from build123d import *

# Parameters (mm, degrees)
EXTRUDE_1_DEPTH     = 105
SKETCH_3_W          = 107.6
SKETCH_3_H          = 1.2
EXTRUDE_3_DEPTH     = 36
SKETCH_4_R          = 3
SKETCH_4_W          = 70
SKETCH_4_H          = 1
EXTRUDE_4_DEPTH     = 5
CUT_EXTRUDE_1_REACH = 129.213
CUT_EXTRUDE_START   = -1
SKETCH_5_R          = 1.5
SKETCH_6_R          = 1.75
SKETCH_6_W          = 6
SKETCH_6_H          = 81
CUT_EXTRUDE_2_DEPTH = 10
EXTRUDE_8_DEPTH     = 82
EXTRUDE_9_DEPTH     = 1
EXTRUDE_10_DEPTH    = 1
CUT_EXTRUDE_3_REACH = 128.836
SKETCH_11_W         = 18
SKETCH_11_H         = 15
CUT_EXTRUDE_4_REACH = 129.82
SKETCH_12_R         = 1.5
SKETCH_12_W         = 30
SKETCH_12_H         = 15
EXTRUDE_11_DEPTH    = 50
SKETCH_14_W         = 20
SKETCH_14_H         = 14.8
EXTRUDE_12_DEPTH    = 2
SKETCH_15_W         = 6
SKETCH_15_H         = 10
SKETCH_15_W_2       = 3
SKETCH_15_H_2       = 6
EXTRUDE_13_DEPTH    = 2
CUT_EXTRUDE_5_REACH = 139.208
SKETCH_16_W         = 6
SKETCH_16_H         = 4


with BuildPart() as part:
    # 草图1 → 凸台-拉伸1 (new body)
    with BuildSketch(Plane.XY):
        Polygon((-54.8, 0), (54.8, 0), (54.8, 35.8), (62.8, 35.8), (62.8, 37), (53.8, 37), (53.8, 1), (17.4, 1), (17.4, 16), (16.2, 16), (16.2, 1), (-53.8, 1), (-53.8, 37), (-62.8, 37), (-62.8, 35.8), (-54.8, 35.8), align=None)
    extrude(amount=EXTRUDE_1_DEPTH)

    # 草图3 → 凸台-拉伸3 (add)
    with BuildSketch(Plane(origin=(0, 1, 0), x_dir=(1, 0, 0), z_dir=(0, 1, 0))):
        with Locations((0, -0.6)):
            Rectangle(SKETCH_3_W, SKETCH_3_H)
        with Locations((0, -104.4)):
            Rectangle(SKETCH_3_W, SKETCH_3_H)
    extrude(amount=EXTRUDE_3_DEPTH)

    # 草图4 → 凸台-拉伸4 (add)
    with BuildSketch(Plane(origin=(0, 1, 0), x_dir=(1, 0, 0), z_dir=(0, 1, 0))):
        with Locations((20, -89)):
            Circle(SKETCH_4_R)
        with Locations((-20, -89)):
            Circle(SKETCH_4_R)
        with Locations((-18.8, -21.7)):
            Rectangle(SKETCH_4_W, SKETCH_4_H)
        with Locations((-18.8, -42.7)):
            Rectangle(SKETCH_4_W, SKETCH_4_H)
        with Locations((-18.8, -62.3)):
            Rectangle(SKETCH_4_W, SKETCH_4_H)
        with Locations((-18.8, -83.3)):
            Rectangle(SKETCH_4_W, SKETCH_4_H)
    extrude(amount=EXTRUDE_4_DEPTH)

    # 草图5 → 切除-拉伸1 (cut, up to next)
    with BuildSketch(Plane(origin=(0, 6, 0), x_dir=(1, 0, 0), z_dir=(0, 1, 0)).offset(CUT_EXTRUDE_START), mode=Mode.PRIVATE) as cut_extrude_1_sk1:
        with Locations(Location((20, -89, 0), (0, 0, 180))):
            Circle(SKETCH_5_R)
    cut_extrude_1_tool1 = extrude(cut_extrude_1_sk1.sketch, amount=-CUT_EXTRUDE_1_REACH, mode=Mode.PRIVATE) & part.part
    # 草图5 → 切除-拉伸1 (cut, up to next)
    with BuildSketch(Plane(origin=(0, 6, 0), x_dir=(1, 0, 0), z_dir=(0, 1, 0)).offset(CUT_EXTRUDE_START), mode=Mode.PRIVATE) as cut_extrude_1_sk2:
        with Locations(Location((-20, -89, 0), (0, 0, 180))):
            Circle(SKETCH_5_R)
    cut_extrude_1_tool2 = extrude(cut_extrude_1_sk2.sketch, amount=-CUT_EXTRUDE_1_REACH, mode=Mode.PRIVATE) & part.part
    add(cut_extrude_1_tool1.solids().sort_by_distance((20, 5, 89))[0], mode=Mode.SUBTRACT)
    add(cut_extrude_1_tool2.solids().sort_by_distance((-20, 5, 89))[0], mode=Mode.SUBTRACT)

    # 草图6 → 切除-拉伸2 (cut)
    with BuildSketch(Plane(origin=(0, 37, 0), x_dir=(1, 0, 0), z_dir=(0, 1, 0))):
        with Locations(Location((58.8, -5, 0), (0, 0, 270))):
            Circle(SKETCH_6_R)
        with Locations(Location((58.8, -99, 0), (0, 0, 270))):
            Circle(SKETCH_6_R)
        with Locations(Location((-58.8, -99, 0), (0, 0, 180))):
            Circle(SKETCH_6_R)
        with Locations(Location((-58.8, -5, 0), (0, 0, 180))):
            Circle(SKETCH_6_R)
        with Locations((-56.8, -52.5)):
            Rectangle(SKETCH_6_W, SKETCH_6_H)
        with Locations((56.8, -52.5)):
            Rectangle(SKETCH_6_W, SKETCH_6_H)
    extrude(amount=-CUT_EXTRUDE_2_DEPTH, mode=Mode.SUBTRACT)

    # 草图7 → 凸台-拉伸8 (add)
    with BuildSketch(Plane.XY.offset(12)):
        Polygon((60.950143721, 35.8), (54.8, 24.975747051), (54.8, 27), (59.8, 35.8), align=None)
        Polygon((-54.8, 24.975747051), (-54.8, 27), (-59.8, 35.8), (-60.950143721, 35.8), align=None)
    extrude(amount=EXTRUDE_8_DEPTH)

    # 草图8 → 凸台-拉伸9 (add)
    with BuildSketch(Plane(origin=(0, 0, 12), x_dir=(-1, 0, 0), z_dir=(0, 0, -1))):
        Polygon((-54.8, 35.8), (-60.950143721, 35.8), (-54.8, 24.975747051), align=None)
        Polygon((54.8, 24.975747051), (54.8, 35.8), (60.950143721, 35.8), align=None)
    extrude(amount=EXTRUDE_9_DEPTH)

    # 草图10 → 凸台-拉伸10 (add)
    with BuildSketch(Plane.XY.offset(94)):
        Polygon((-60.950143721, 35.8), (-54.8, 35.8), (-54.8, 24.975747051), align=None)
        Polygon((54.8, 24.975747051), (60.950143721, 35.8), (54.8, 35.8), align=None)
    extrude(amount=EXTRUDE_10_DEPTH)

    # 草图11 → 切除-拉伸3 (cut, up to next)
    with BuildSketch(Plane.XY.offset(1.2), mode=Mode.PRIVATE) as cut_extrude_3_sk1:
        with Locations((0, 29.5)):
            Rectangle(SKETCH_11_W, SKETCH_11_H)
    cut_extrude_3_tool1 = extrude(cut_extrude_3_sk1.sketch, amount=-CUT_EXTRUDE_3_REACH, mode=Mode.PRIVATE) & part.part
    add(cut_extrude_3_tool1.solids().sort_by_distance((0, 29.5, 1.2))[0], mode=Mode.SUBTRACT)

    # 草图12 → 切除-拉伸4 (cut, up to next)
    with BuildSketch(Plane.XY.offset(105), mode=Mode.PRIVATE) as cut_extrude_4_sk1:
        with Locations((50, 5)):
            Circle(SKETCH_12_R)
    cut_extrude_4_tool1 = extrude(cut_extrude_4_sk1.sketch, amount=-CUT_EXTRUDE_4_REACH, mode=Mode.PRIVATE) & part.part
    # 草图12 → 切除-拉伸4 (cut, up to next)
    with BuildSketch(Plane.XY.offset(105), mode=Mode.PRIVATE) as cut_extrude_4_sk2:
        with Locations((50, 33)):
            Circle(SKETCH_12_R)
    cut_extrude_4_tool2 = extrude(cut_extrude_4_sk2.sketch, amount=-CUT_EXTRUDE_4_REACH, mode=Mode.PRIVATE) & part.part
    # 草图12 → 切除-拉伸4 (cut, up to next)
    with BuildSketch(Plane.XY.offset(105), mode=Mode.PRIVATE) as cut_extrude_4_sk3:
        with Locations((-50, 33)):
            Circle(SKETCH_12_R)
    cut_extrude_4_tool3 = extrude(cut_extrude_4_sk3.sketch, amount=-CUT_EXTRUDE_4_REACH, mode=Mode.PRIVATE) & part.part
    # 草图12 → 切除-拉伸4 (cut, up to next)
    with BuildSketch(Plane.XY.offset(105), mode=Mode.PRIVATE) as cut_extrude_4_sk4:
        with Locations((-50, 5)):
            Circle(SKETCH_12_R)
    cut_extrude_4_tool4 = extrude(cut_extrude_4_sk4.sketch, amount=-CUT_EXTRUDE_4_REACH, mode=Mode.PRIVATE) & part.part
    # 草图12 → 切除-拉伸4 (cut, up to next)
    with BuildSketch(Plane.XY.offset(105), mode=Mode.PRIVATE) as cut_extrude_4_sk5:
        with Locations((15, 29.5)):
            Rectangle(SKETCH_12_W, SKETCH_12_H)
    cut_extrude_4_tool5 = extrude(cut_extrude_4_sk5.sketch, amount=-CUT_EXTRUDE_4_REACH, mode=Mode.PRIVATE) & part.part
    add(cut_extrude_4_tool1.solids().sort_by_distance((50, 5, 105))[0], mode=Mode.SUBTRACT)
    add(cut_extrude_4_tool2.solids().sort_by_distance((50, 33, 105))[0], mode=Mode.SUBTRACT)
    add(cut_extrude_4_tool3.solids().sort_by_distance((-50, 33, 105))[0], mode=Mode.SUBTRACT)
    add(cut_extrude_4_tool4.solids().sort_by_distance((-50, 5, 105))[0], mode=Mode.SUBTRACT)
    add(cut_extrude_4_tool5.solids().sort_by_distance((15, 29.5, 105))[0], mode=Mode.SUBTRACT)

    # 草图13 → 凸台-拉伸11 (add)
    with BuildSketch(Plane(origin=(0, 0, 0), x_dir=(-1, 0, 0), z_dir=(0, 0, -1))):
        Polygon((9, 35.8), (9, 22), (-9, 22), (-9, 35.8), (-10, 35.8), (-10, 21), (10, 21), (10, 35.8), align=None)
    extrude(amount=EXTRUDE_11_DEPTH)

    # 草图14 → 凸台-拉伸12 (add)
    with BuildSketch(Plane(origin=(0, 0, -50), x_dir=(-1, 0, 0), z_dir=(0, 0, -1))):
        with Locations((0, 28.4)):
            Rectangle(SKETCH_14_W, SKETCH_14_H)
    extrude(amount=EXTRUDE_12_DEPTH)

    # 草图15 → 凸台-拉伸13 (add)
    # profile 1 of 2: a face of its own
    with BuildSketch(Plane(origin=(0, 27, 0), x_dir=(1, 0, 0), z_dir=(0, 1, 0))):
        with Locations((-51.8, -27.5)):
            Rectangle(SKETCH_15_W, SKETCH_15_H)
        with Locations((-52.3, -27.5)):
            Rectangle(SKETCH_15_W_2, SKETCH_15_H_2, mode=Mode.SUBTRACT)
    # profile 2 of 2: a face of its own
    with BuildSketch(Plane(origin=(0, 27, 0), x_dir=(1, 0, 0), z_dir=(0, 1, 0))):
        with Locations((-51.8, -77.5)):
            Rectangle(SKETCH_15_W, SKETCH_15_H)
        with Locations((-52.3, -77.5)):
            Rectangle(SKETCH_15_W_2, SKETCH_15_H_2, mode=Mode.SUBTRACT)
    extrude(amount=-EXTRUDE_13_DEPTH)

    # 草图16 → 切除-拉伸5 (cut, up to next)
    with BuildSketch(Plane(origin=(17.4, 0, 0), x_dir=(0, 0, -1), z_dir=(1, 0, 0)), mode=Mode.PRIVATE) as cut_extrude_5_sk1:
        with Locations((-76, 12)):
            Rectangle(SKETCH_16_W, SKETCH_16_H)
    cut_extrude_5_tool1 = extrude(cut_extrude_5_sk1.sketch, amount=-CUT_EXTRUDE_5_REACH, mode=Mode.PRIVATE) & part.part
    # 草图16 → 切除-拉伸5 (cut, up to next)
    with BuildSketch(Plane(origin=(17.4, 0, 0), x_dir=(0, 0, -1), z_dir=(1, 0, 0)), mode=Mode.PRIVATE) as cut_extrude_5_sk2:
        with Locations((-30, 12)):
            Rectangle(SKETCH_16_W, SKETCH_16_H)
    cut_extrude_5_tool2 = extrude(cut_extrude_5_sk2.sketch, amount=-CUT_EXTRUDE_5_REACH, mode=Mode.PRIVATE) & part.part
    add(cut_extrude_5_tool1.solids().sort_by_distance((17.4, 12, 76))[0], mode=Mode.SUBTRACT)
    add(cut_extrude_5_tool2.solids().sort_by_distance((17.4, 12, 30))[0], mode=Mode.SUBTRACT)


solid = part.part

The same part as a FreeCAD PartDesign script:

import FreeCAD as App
import Part
import Sketcher

V = App.Vector

doc = App.newDocument("Part")
body = doc.addObject("PartDesign::Body", "Body")

# Sketch on XY plane
sketch1 = body.newObject("Sketcher::SketchObject", "Sketch")
sketch1.AttachmentSupport = (doc.getObject("XY_Plane"), [""])
sketch1.MapMode = "FlatFace"
sketch1.addGeometry([
    Part.LineSegment(V(-54.8, 0, 0), V(54.8, 0, 0)),  # 0
    Part.LineSegment(V(54.8, 0, 0), V(54.8, 35.8, 0)),  # 1
    Part.LineSegment(V(54.8, 35.8, 0), V(62.8, 35.8, 0)),  # 2
    Part.LineSegment(V(62.8, 35.8, 0), V(62.8, 37, 0)),  # 3
    Part.LineSegment(V(62.8, 37, 0), V(53.8, 37, 0)),  # 4
    Part.LineSegment(V(53.8, 37, 0), V(53.8, 1, 0)),  # 5
    Part.LineSegment(V(53.8, 1, 0), V(17.4, 1, 0)),  # 6
    Part.LineSegment(V(17.4, 1, 0), V(17.4, 16, 0)),  # 7
    Part.LineSegment(V(17.4, 16, 0), V(16.2, 16, 0)),  # 8
    Part.LineSegment(V(16.2, 16, 0), V(16.2, 1, 0)),  # 9
    Part.LineSegment(V(16.2, 1, 0), V(-53.8, 1, 0)),  # 10
    Part.LineSegment(V(-53.8, 1, 0), V(-53.8, 37, 0)),  # 11
    Part.LineSegment(V(-53.8, 37, 0), V(-62.8, 37, 0)),  # 12
    Part.LineSegment(V(-62.8, 37, 0), V(-62.8, 35.8, 0)),  # 13
    Part.LineSegment(V(-62.8, 35.8, 0), V(-54.8, 35.8, 0)),  # 14
    Part.LineSegment(V(-54.8, 35.8, 0), V(-54.8, 0, 0)),  # 15
], False)
sketch1.addConstraint([
    Sketcher.Constraint("Coincident", 0, 2, 1, 1),
    Sketcher.Constraint("Coincident", 1, 2, 2, 1),
    Sketcher.Constraint("Coincident", 2, 2, 3, 1),
    Sketcher.Constraint("Coincident", 3, 2, 4, 1),
    Sketcher.Constraint("Coincident", 4, 2, 5, 1),
    Sketcher.Constraint("Coincident", 5, 2, 6, 1),
    Sketcher.Constraint("Coincident", 6, 2, 7, 1),
    Sketcher.Constraint("Coincident", 7, 2, 8, 1),
    Sketcher.Constraint("Coincident", 8, 2, 9, 1),
    Sketcher.Constraint("Coincident", 9, 2, 10, 1),
    Sketcher.Constraint("Coincident", 10, 2, 11, 1),
    Sketcher.Constraint("Coincident", 11, 2, 12, 1),
    Sketcher.Constraint("Coincident", 12, 2, 13, 1),
    Sketcher.Constraint("Coincident", 13, 2, 14, 1),
    Sketcher.Constraint("Coincident", 14, 2, 15, 1),
    Sketcher.Constraint("Coincident", 15, 2, 0, 1),
    Sketcher.Constraint("Horizontal", 0),
    Sketcher.Constraint("Vertical", 1),
    Sketcher.Constraint("Horizontal", 2),
    Sketcher.Constraint("Vertical", 3),
    Sketcher.Constraint("Horizontal", 4),
    Sketcher.Constraint("Vertical", 5),
    Sketcher.Constraint("Horizontal", 6),
    Sketcher.Constraint("Vertical", 7),
    Sketcher.Constraint("Horizontal", 8),
    Sketcher.Constraint("Vertical", 9),
    Sketcher.Constraint("Horizontal", 10),
    Sketcher.Constraint("Vertical", 11),
    Sketcher.Constraint("Horizontal", 12),
    Sketcher.Constraint("Vertical", 13),
    Sketcher.Constraint("Horizontal", 14),
    Sketcher.Constraint("Vertical", 15),
    Sketcher.Constraint("Symmetric", 0, 2, 15, 2, -1, 1),
    Sketcher.Constraint("Symmetric", 5, 2, 10, 2, -2),
    Sketcher.Constraint("Symmetric", 3, 2, 12, 2, -2),
    Sketcher.Constraint("Horizontal", 2, 2, 13, 2),
    Sketcher.Constraint("Equal", 8, 3),
    Sketcher.Constraint("DistanceX", 2, 1, 2, 2, 8.0),
    Sketcher.Constraint("DistanceX", 4, 2, 4, 1, 9.0),
    Sketcher.Constraint("DistanceX", 10, 2, 10, 1, 70.0),
    Sketcher.Constraint("DistanceY", 5, 2, 5, 1, 36.0),
    Sketcher.Constraint("DistanceY", 7, 1, 7, 2, 15.0),
    Sketcher.Constraint("DistanceX", 0, 1, 0, 2, 109.6),
    Sketcher.Constraint("DistanceX", 6, 2, 6, 1, 36.4),
    Sketcher.Constraint("DistanceY", 1, 1, 1, 2, 35.8),
])
pad1 = body.newObject("PartDesign::Pad", "Pad")
pad1.Profile = sketch1
pad1.Length = 105

# Sketch on XZ plane
sketch2 = body.newObject("Sketcher::SketchObject", "Sketch001")
sketch2.AttachmentSupport = (doc.getObject("XZ_Plane"), [""])
sketch2.MapMode = "FlatFace"
sketch2.AttachmentOffset = App.Placement(V(0, 0, -1), App.Rotation())
sketch2.addGeometry([
    Part.LineSegment(V(-53.8, 0, 0), V(-53.8, 1.2, 0)),  # 0
    Part.LineSegment(V(-53.8, 1.2, 0), V(53.8, 1.2, 0)),  # 1
    Part.LineSegment(V(53.8, 1.2, 0), V(53.8, 0, 0)),  # 2
    Part.LineSegment(V(53.8, 0, 0), V(-53.8, 0, 0)),  # 3
    Part.LineSegment(V(-53.8, 103.8, 0), V(-53.8, 105, 0)),  # 4
    Part.LineSegment(V(-53.8, 105, 0), V(53.8, 105, 0)),  # 5
    Part.LineSegment(V(53.8, 105, 0), V(53.8, 103.8, 0)),  # 6
    Part.LineSegment(V(53.8, 103.8, 0), V(-53.8, 103.8, 0)),  # 7
], False)
sketch2.addConstraint([
    Sketcher.Constraint("Coincident", 0, 2, 1, 1),
    Sketcher.Constraint("Coincident", 1, 2, 2, 1),
    Sketcher.Constraint("Coincident", 2, 2, 3, 1),
    Sketcher.Constraint("Coincident", 3, 2, 0, 1),
    Sketcher.Constraint("Coincident", 4, 2, 5, 1),
    Sketcher.Constraint("Coincident", 5, 2, 6, 1),
    Sketcher.Constraint("Coincident", 6, 2, 7, 1),
    Sketcher.Constraint("Coincident", 7, 2, 4, 1),
    Sketcher.Constraint("Vertical", 0),
    Sketcher.Constraint("Horizontal", 1),
    Sketcher.Constraint("Vertical", 2),
    Sketcher.Constraint("Horizontal", 3),
    Sketcher.Constraint("Vertical", 4),
    Sketcher.Constraint("Horizontal", 5),
    Sketcher.Constraint("Vertical", 6),
    Sketcher.Constraint("Horizontal", 7),
    Sketcher.Constraint("Symmetric", 2, 2, 3, 2, -1, 1),
    Sketcher.Constraint("Vertical", 3, 2, 4, 2),
    Sketcher.Constraint("Vertical", 2, 2, 5, 2),
    Sketcher.Constraint("Equal", 2, 4),
    Sketcher.Constraint("DistanceX", 1, 1, 1, 2, 107.6),
    Sketcher.Constraint("DistanceY", 0, 1, 0, 2, 1.2),
    Sketcher.Constraint("DistanceY", -1, 1, 4, 2, 105.0),
])
pad2 = body.newObject("PartDesign::Pad", "Pad001")
pad2.Profile = sketch2
pad2.Length = 36
pad2.Reversed = True

# Sketch on XZ plane
sketch3 = body.newObject("Sketcher::SketchObject", "Sketch002")
sketch3.AttachmentSupport = (doc.getObject("XZ_Plane"), [""])
sketch3.MapMode = "FlatFace"
sketch3.AttachmentOffset = App.Placement(V(0, 0, -1), App.Rotation())
sketch3.addGeometry([
    Part.Circle(V(20, 89, 0), V(0, 0, 1), 3),  # 0
    Part.Circle(V(-20, 89, 0), V(0, 0, 1), 3),  # 1
    Part.LineSegment(V(-53.8, 21.2, 0), V(-53.8, 22.2, 0)),  # 2
    Part.LineSegment(V(-53.8, 22.2, 0), V(16.2, 22.2, 0)),  # 3
    Part.LineSegment(V(16.2, 22.2, 0), V(16.2, 21.2, 0)),  # 4
    Part.LineSegment(V(16.2, 21.2, 0), V(-53.8, 21.2, 0)),  # 5
    Part.LineSegment(V(-53.8, 42.2, 0), V(-53.8, 43.2, 0)),  # 6
    Part.LineSegment(V(-53.8, 43.2, 0), V(16.2, 43.2, 0)),  # 7
    Part.LineSegment(V(16.2, 43.2, 0), V(16.2, 42.2, 0)),  # 8
    Part.LineSegment(V(16.2, 42.2, 0), V(-53.8, 42.2, 0)),  # 9
    Part.LineSegment(V(-53.8, 61.8, 0), V(-53.8, 62.8, 0)),  # 10
    Part.LineSegment(V(-53.8, 62.8, 0), V(16.2, 62.8, 0)),  # 11
    Part.LineSegment(V(16.2, 62.8, 0), V(16.2, 61.8, 0)),  # 12
    Part.LineSegment(V(16.2, 61.8, 0), V(-53.8, 61.8, 0)),  # 13
    Part.LineSegment(V(-53.8, 82.8, 0), V(-53.8, 83.8, 0)),  # 14
    Part.LineSegment(V(-53.8, 83.8, 0), V(16.2, 83.8, 0)),  # 15
    Part.LineSegment(V(16.2, 83.8, 0), V(16.2, 82.8, 0)),  # 16
    Part.LineSegment(V(16.2, 82.8, 0), V(-53.8, 82.8, 0)),  # 17
], False)
sketch3.addConstraint([
    Sketcher.Constraint("Coincident", 2, 2, 3, 1),
    Sketcher.Constraint("Coincident", 3, 2, 4, 1),
    Sketcher.Constraint("Coincident", 4, 2, 5, 1),
    Sketcher.Constraint("Coincident", 5, 2, 2, 1),
    Sketcher.Constraint("Coincident", 6, 2, 7, 1),
    Sketcher.Constraint("Coincident", 7, 2, 8, 1),
    Sketcher.Constraint("Coincident", 8, 2, 9, 1),
    Sketcher.Constraint("Coincident", 9, 2, 6, 1),
    Sketcher.Constraint("Coincident", 10, 2, 11, 1),
    Sketcher.Constraint("Coincident", 11, 2, 12, 1),
    Sketcher.Constraint("Coincident", 12, 2, 13, 1),
    Sketcher.Constraint("Coincident", 13, 2, 10, 1),
    Sketcher.Constraint("Coincident", 14, 2, 15, 1),
    Sketcher.Constraint("Coincident", 15, 2, 16, 1),
    Sketcher.Constraint("Coincident", 16, 2, 17, 1),
    Sketcher.Constraint("Coincident", 17, 2, 14, 1),
    Sketcher.Constraint("Vertical", 2),
    Sketcher.Constraint("Horizontal", 3),
    Sketcher.Constraint("Vertical", 4),
    Sketcher.Constraint("Horizontal", 5),
    Sketcher.Constraint("Vertical", 6),
    Sketcher.Constraint("Horizontal", 7),
    Sketcher.Constraint("Vertical", 8),
    Sketcher.Constraint("Horizontal", 9),
    Sketcher.Constraint("Vertical", 10),
    Sketcher.Constraint("Horizontal", 11),
    Sketcher.Constraint("Vertical", 12),
    Sketcher.Constraint("Horizontal", 13),
    Sketcher.Constraint("Vertical", 14),
    Sketcher.Constraint("Horizontal", 15),
    Sketcher.Constraint("Vertical", 16),
    Sketcher.Constraint("Horizontal", 17),
    Sketcher.Constraint("Equal", 0, 1),
    Sketcher.Constraint("Symmetric", 0, 3, 1, 3, -2),
    Sketcher.Constraint("Vertical", 5, 2, 6, 2),
    Sketcher.Constraint("Vertical", 4, 2, 7, 2),
    Sketcher.Constraint("Vertical", 9, 2, 10, 2),
    Sketcher.Constraint("Vertical", 8, 2, 11, 2),
    Sketcher.Constraint("Vertical", 13, 2, 14, 2),
    Sketcher.Constraint("Vertical", 12, 2, 15, 2),
    Sketcher.Constraint("Equal", 4, 6),
    Sketcher.Constraint("Equal", 8, 10),
    Sketcher.Constraint("Equal", 12, 14),
    Sketcher.Constraint("Diameter", 0, 6.0),
    Sketcher.Constraint("DistanceX", 3, 1, 3, 2, 70.0),
    Sketcher.Constraint("DistanceY", 2, 1, 2, 2, 1.0),
    Sketcher.Constraint("DistanceX", -1, 1, 0, 3, 20.0),
    Sketcher.Constraint("DistanceY", -1, 1, 0, 3, 89.0),
    Sketcher.Constraint("DistanceY", 2, 2, 6, 2, 21.0),
    Sketcher.Constraint("DistanceY", 10, 2, 14, 2, 21.0),
    Sketcher.Constraint("DistanceX", 2, 2, -1, 1, 53.8),
    Sketcher.Constraint("DistanceY", -1, 1, 2, 2, 22.2),
    Sketcher.Constraint("DistanceY", -1, 1, 10, 2, 62.8),
])
pad3 = body.newObject("PartDesign::Pad", "Pad002")
pad3.Profile = sketch3
pad3.Length = 5
pad3.Reversed = True

# Sketch on XZ plane
sketch4 = body.newObject("Sketcher::SketchObject", "Sketch003")
sketch4.AttachmentSupport = (doc.getObject("XZ_Plane"), [""])
sketch4.MapMode = "FlatFace"
sketch4.AttachmentOffset = App.Placement(V(0, 0, -5), App.Rotation())
sketch4.addGeometry(Part.Circle(V(20, 89, 0), V(0, 0, 1), 1.5), False)
sketch4.addConstraint([
    Sketcher.Constraint("Diameter", 0, 3.0),
    Sketcher.Constraint("DistanceX", -1, 1, 0, 3, 20.0),
    Sketcher.Constraint("DistanceY", -1, 1, 0, 3, 89.0),
])
pocket1 = body.newObject("PartDesign::Pocket", "Pocket")
pocket1.Profile = sketch4
pocket1.Type = "UpToFirst"
pocket1.Reversed = True

# Sketch on XZ plane
sketch5 = body.newObject("Sketcher::SketchObject", "Sketch004")
sketch5.AttachmentSupport = (doc.getObject("XZ_Plane"), [""])
sketch5.MapMode = "FlatFace"
sketch5.AttachmentOffset = App.Placement(V(0, 0, -5), App.Rotation())
sketch5.addGeometry(Part.Circle(V(-20, 89, 0), V(0, 0, 1), 1.5), False)
sketch5.addConstraint([
    Sketcher.Constraint("Diameter", 0, 3.0),
    Sketcher.Constraint("DistanceX", 0, 3, -1, 1, 20.0),
    Sketcher.Constraint("DistanceY", -1, 1, 0, 3, 89.0),
])
pocket2 = body.newObject("PartDesign::Pocket", "Pocket001")
pocket2.Profile = sketch5
pocket2.Type = "UpToFirst"
pocket2.Reversed = True

# Sketch on XZ plane
sketch6 = body.newObject("Sketcher::SketchObject", "Sketch005")
sketch6.AttachmentSupport = (doc.getObject("XZ_Plane"), [""])
sketch6.MapMode = "FlatFace"
sketch6.AttachmentOffset = App.Placement(V(0, 0, -37), App.Rotation())
sketch6.addGeometry([
    Part.Circle(V(58.8, 5, 0), V(0, 0, 1), 1.8),  # 0
    Part.Circle(V(58.8, 99, 0), V(0, 0, 1), 1.8),  # 1
    Part.Circle(V(-58.8, 99, 0), V(0, 0, 1), 1.8),  # 2
    Part.Circle(V(-58.8, 5, 0), V(0, 0, 1), 1.8),  # 3
    Part.LineSegment(V(-59.8, 12, 0), V(-59.8, 93, 0)),  # 4
    Part.LineSegment(V(-59.8, 93, 0), V(-53.8, 93, 0)),  # 5
    Part.LineSegment(V(-53.8, 93, 0), V(-53.8, 12, 0)),  # 6
    Part.LineSegment(V(-53.8, 12, 0), V(-59.8, 12, 0)),  # 7
    Part.LineSegment(V(53.8, 12, 0), V(53.8, 93, 0)),  # 8
    Part.LineSegment(V(53.8, 93, 0), V(59.8, 93, 0)),  # 9
    Part.LineSegment(V(59.8, 93, 0), V(59.8, 12, 0)),  # 10
    Part.LineSegment(V(59.8, 12, 0), V(53.8, 12, 0)),  # 11
], False)
sketch6.addConstraint([
    Sketcher.Constraint("Coincident", 4, 2, 5, 1),
    Sketcher.Constraint("Coincident", 5, 2, 6, 1),
    Sketcher.Constraint("Coincident", 6, 2, 7, 1),
    Sketcher.Constraint("Coincident", 7, 2, 4, 1),
    Sketcher.Constraint("Coincident", 8, 2, 9, 1),
    Sketcher.Constraint("Coincident", 9, 2, 10, 1),
    Sketcher.Constraint("Coincident", 10, 2, 11, 1),
    Sketcher.Constraint("Coincident", 11, 2, 8, 1),
    Sketcher.Constraint("Vertical", 4),
    Sketcher.Constraint("Horizontal", 5),
    Sketcher.Constraint("Vertical", 6),
    Sketcher.Constraint("Horizontal", 7),
    Sketcher.Constraint("Vertical", 8),
    Sketcher.Constraint("Horizontal", 9),
    Sketcher.Constraint("Vertical", 10),
    Sketcher.Constraint("Horizontal", 11),
    Sketcher.Constraint("Equal", 0, 1),
    Sketcher.Constraint("Equal", 1, 2),
    Sketcher.Constraint("Equal", 2, 3),
    Sketcher.Constraint("Symmetric", 1, 3, 2, 3, -2),
    Sketcher.Constraint("Symmetric", 0, 3, 3, 3, -2),
    Sketcher.Constraint("Symmetric", 5, 2, 8, 2, -2),
    Sketcher.Constraint("Symmetric", 7, 2, 10, 2, -2),
    Sketcher.Constraint("Vertical", 0, 3, 1, 3),
    Sketcher.Constraint("Diameter", 0, 3.5),
    Sketcher.Constraint("DistanceX", 5, 1, 5, 2, 6.0),
    Sketcher.Constraint("DistanceY", 4, 1, 4, 2, 81.0),
    Sketcher.Constraint("DistanceY", -1, 1, 0, 3, 5.0),
    Sketcher.Constraint("DistanceY", -1, 1, 1, 3, 99.0),
    Sketcher.Constraint("DistanceY", -1, 1, 4, 2, 93.0),
    Sketcher.Constraint("DistanceX", 4, 2, 2, 3, 1.0),
    Sketcher.Constraint("DistanceX", -1, 1, 0, 3, 58.8),
])
pocket3 = body.newObject("PartDesign::Pocket", "Pocket002")
pocket3.Profile = sketch6
pocket3.Length = 10
pocket3.Reversed = True

# Sketch on XY plane
sketch7 = body.newObject("Sketcher::SketchObject", "Sketch006")
sketch7.AttachmentSupport = (doc.getObject("XY_Plane"), [""])
sketch7.MapMode = "FlatFace"
sketch7.AttachmentOffset = App.Placement(V(0, 0, 12), App.Rotation())
sketch7.addGeometry([
    Part.LineSegment(V(54.8, 25, 0), V(61, 35.8, 0)),  # 0
    Part.LineSegment(V(61, 35.8, 0), V(59.8, 35.8, 0)),  # 1
    Part.LineSegment(V(59.8, 35.8, 0), V(54.8, 27, 0)),  # 2
    Part.LineSegment(V(54.8, 27, 0), V(54.8, 25, 0)),  # 3
    Part.LineSegment(V(-54.8, 25, 0), V(-54.8, 27, 0)),  # 4
    Part.LineSegment(V(-54.8, 27, 0), V(-59.8, 35.8, 0)),  # 5
    Part.LineSegment(V(-59.8, 35.8, 0), V(-61, 35.8, 0)),  # 6
    Part.LineSegment(V(-61, 35.8, 0), V(-54.8, 25, 0)),  # 7
], False)
sketch7.addConstraint([
    Sketcher.Constraint("Coincident", 0, 2, 1, 1),
    Sketcher.Constraint("Coincident", 1, 2, 2, 1),
    Sketcher.Constraint("Coincident", 2, 2, 3, 1),
    Sketcher.Constraint("Coincident", 3, 2, 0, 1),
    Sketcher.Constraint("Coincident", 4, 2, 5, 1),
    Sketcher.Constraint("Coincident", 5, 2, 6, 1),
    Sketcher.Constraint("Coincident", 6, 2, 7, 1),
    Sketcher.Constraint("Coincident", 7, 2, 4, 1),
    Sketcher.Constraint("Horizontal", 1),
    Sketcher.Constraint("Vertical", 3),
    Sketcher.Constraint("Vertical", 4),
    Sketcher.Constraint("Horizontal", 6),
    Sketcher.Constraint("Symmetric", 2, 2, 4, 2, -2),
    Sketcher.Constraint("Symmetric", 1, 2, 5, 2, -2),
    Sketcher.Constraint("Parallel", 0, 2),
    Sketcher.Constraint("Parallel", 5, 7),
    Sketcher.Constraint("Horizontal", 3, 2, 7, 2),
    Sketcher.Constraint("DistanceY", -1, 1, 2, 2, 27.0),
    Sketcher.Constraint("DistanceX", 2, 2, 1, 2, 5.0),
    Sketcher.Constraint("DistanceY", -1, 1, 0, 2, 35.8),
    Sketcher.Constraint("DistanceX", -1, 1, 1, 2, 59.8),
    Sketcher.Constraint("DistanceX", 1, 2, 1, 1, 1.150144),
])
pad4 = body.newObject("PartDesign::Pad", "Pad003")
pad4.Profile = sketch7
pad4.Length = 82

# Sketch on XY plane
sketch8 = body.newObject("Sketcher::SketchObject", "Sketch007")
sketch8.AttachmentSupport = (doc.getObject("XY_Plane"), [""])
sketch8.MapMode = "FlatFace"
sketch8.AttachmentOffset = App.Placement(V(0, 0, 12), App.Rotation())
sketch8.addGeometry([
    Part.LineSegment(V(55, 36, 0), V(61, 36, 0)),  # 0
    Part.LineSegment(V(61, 36, 0), V(55, 25, 0)),  # 1
    Part.LineSegment(V(55, 25, 0), V(55, 36, 0)),  # 2
    Part.LineSegment(V(-55, 36, 0), V(-55, 25, 0)),  # 3
    Part.LineSegment(V(-55, 25, 0), V(-61, 36, 0)),  # 4
    Part.LineSegment(V(-61, 36, 0), V(-55, 36, 0)),  # 5
], False)
sketch8.addConstraint([
    Sketcher.Constraint("Coincident", 0, 2, 1, 1),
    Sketcher.Constraint("Coincident", 1, 2, 2, 1),
    Sketcher.Constraint("Coincident", 2, 2, 0, 1),
    Sketcher.Constraint("Coincident", 3, 2, 4, 1),
    Sketcher.Constraint("Coincident", 4, 2, 5, 1),
    Sketcher.Constraint("Coincident", 5, 2, 3, 1),
    Sketcher.Constraint("Horizontal", 0),
    Sketcher.Constraint("Vertical", 2),
    Sketcher.Constraint("Vertical", 3),
    Sketcher.Constraint("Horizontal", 5),
    Sketcher.Constraint("Symmetric", 1, 2, 3, 2, -2),
    Sketcher.Constraint("Symmetric", 0, 2, 4, 2, -2),
    Sketcher.Constraint("DistanceY", -1, 1, 0, 2, 35.8),
    Sketcher.Constraint("DistanceX", -1, 1, 1, 2, 54.8),
    Sketcher.Constraint("DistanceX", 0, 1, 0, 2, 6.150144),
    Sketcher.Constraint("DistanceY", 2, 1, 2, 2, 10.824253),
])
pad5 = body.newObject("PartDesign::Pad", "Pad004")
pad5.Profile = sketch8
pad5.Length = 1
pad5.Reversed = True

# Sketch on XY plane
sketch9 = body.newObject("Sketcher::SketchObject", "Sketch008")
sketch9.AttachmentSupport = (doc.getObject("XY_Plane"), [""])
sketch9.MapMode = "FlatFace"
sketch9.AttachmentOffset = App.Placement(V(0, 0, 94), App.Rotation())
sketch9.addGeometry([
    Part.LineSegment(V(-55, 36, 0), V(-61, 36, 0)),  # 0
    Part.LineSegment(V(-61, 36, 0), V(-55, 25, 0)),  # 1
    Part.LineSegment(V(-55, 25, 0), V(-55, 36, 0)),  # 2
    Part.LineSegment(V(55, 25, 0), V(61, 36, 0)),  # 3
    Part.LineSegment(V(61, 36, 0), V(55, 36, 0)),  # 4
    Part.LineSegment(V(55, 36, 0), V(55, 25, 0)),  # 5
], False)
sketch9.addConstraint([
    Sketcher.Constraint("Coincident", 0, 2, 1, 1),
    Sketcher.Constraint("Coincident", 1, 2, 2, 1),
    Sketcher.Constraint("Coincident", 2, 2, 0, 1),
    Sketcher.Constraint("Coincident", 3, 2, 4, 1),
    Sketcher.Constraint("Coincident", 4, 2, 5, 1),
    Sketcher.Constraint("Coincident", 5, 2, 3, 1),
    Sketcher.Constraint("Horizontal", 0),
    Sketcher.Constraint("Vertical", 2),
    Sketcher.Constraint("Horizontal", 4),
    Sketcher.Constraint("Vertical", 5),
    Sketcher.Constraint("Symmetric", 0, 2, 3, 2, -2),
    Sketcher.Constraint("Symmetric", 1, 2, 5, 2, -2),
    Sketcher.Constraint("DistanceY", -1, 1, 0, 2, 35.8),
    Sketcher.Constraint("DistanceX", 1, 2, -1, 1, 54.8),
    Sketcher.Constraint("DistanceX", 0, 2, 0, 1, 6.150144),
    Sketcher.Constraint("DistanceY", 2, 1, 2, 2, 10.824253),
])
pad6 = body.newObject("PartDesign::Pad", "Pad005")
pad6.Profile = sketch9
pad6.Length = 1

# Sketch on XY plane
sketch10 = body.newObject("Sketcher::SketchObject", "Sketch009")
sketch10.AttachmentSupport = (doc.getObject("XY_Plane"), [""])
sketch10.MapMode = "FlatFace"
sketch10.AttachmentOffset = App.Placement(V(0, 0, 1.2), App.Rotation())
sketch10.addGeometry([
    Part.LineSegment(V(-9, 37, 0), V(-9, 22, 0)),
    Part.LineSegment(V(-9, 22, 0), V(9, 22, 0)),
    Part.LineSegment(V(9, 22, 0), V(9, 37, 0)),
    Part.LineSegment(V(9, 37, 0), V(-9, 37, 0)),
], False)
sketch10.addConstraint([
    Sketcher.Constraint("Coincident", 0, 2, 1, 1),
    Sketcher.Constraint("Coincident", 1, 2, 2, 1),
    Sketcher.Constraint("Coincident", 2, 2, 3, 1),
    Sketcher.Constraint("Coincident", 3, 2, 0, 1),
    Sketcher.Constraint("Vertical", 0),
    Sketcher.Constraint("Horizontal", 1),
    Sketcher.Constraint("Vertical", 2),
    Sketcher.Constraint("Horizontal", 3),
    Sketcher.Constraint("DistanceX", 1, 1, 1, 2, 18.0),
    Sketcher.Constraint("DistanceY", 0, 2, 0, 1, 15.0),
    Sketcher.Constraint("DistanceX", 0, 2, -1, 1, 9.0),
    Sketcher.Constraint("DistanceY", -1, 1, 0, 2, 22.0),
])
pocket4 = body.newObject("PartDesign::Pocket", "Pocket003")
pocket4.Profile = sketch10
pocket4.Type = "UpToFirst"

# Sketch on XY plane
sketch11 = body.newObject("Sketcher::SketchObject", "Sketch010")
sketch11.AttachmentSupport = (doc.getObject("XY_Plane"), [""])
sketch11.MapMode = "FlatFace"
sketch11.AttachmentOffset = App.Placement(V(0, 0, 105), App.Rotation())
sketch11.addGeometry(Part.Circle(V(50, 5, 0), V(0, 0, 1), 1.5), False)
sketch11.addConstraint([
    Sketcher.Constraint("Diameter", 0, 3.0),
    Sketcher.Constraint("DistanceX", -1, 1, 0, 3, 50.0),
    Sketcher.Constraint("DistanceY", -1, 1, 0, 3, 5.0),
])
pocket5 = body.newObject("PartDesign::Pocket", "Pocket004")
pocket5.Profile = sketch11
pocket5.Type = "UpToFirst"

# Sketch on XY plane
sketch12 = body.newObject("Sketcher::SketchObject", "Sketch011")
sketch12.AttachmentSupport = (doc.getObject("XY_Plane"), [""])
sketch12.MapMode = "FlatFace"
sketch12.AttachmentOffset = App.Placement(V(0, 0, 105), App.Rotation())
sketch12.addGeometry(Part.Circle(V(50, 33, 0), V(0, 0, 1), 1.5), False)
sketch12.addConstraint([
    Sketcher.Constraint("Diameter", 0, 3.0),
    Sketcher.Constraint("DistanceX", -1, 1, 0, 3, 50.0),
    Sketcher.Constraint("DistanceY", -1, 1, 0, 3, 33.0),
])
pocket6 = body.newObject("PartDesign::Pocket", "Pocket005")
pocket6.Profile = sketch12
pocket6.Type = "UpToFirst"

# Sketch on XY plane
sketch13 = body.newObject("Sketcher::SketchObject", "Sketch012")
sketch13.AttachmentSupport = (doc.getObject("XY_Plane"), [""])
sketch13.MapMode = "FlatFace"
sketch13.AttachmentOffset = App.Placement(V(0, 0, 105), App.Rotation())
sketch13.addGeometry(Part.Circle(V(-50, 33, 0), V(0, 0, 1), 1.5), False)
sketch13.addConstraint([
    Sketcher.Constraint("Diameter", 0, 3.0),
    Sketcher.Constraint("DistanceX", 0, 3, -1, 1, 50.0),
    Sketcher.Constraint("DistanceY", -1, 1, 0, 3, 33.0),
])
pocket7 = body.newObject("PartDesign::Pocket", "Pocket006")
pocket7.Profile = sketch13
pocket7.Type = "UpToFirst"

# Sketch on XY plane
sketch14 = body.newObject("Sketcher::SketchObject", "Sketch013")
sketch14.AttachmentSupport = (doc.getObject("XY_Plane"), [""])
sketch14.MapMode = "FlatFace"
sketch14.AttachmentOffset = App.Placement(V(0, 0, 105), App.Rotation())
sketch14.addGeometry(Part.Circle(V(-50, 5, 0), V(0, 0, 1), 1.5), False)
sketch14.addConstraint([
    Sketcher.Constraint("Diameter", 0, 3.0),
    Sketcher.Constraint("DistanceX", 0, 3, -1, 1, 50.0),
    Sketcher.Constraint("DistanceY", -1, 1, 0, 3, 5.0),
])
pocket8 = body.newObject("PartDesign::Pocket", "Pocket007")
pocket8.Profile = sketch14
pocket8.Type = "UpToFirst"

# Sketch on XY plane
sketch15 = body.newObject("Sketcher::SketchObject", "Sketch014")
sketch15.AttachmentSupport = (doc.getObject("XY_Plane"), [""])
sketch15.MapMode = "FlatFace"
sketch15.AttachmentOffset = App.Placement(V(0, 0, 105), App.Rotation())
sketch15.addGeometry([
    Part.LineSegment(V(0, 37, 0), V(0, 22, 0)),
    Part.LineSegment(V(0, 22, 0), V(30, 22, 0)),
    Part.LineSegment(V(30, 22, 0), V(30, 37, 0)),
    Part.LineSegment(V(30, 37, 0), V(0, 37, 0)),
], False)
sketch15.addConstraint([
    Sketcher.Constraint("Coincident", 0, 2, 1, 1),
    Sketcher.Constraint("Coincident", 1, 2, 2, 1),
    Sketcher.Constraint("Coincident", 2, 2, 3, 1),
    Sketcher.Constraint("Coincident", 3, 2, 0, 1),
    Sketcher.Constraint("Vertical", 0),
    Sketcher.Constraint("Horizontal", 1),
    Sketcher.Constraint("Vertical", 2),
    Sketcher.Constraint("Horizontal", 3),
    Sketcher.Constraint("PointOnObject", 0, 2, -2),
    Sketcher.Constraint("DistanceX", 1, 1, 1, 2, 30.0),
    Sketcher.Constraint("DistanceY", 0, 2, 0, 1, 15.0),
    Sketcher.Constraint("DistanceY", -1, 1, 0, 2, 22.0),
])
pocket9 = body.newObject("PartDesign::Pocket", "Pocket008")
pocket9.Profile = sketch15
pocket9.Type = "UpToFirst"

# Sketch on XY plane
sketch16 = body.newObject("Sketcher::SketchObject", "Sketch015")
sketch16.AttachmentSupport = (doc.getObject("XY_Plane"), [""])
sketch16.MapMode = "FlatFace"
sketch16.addGeometry([
    Part.LineSegment(V(-9, 35.8, 0), V(-9, 22, 0)),  # 0
    Part.LineSegment(V(-9, 22, 0), V(9, 22, 0)),  # 1
    Part.LineSegment(V(9, 22, 0), V(9, 35.8, 0)),  # 2
    Part.LineSegment(V(9, 35.8, 0), V(10, 35.8, 0)),  # 3
    Part.LineSegment(V(10, 35.8, 0), V(10, 21, 0)),  # 4
    Part.LineSegment(V(10, 21, 0), V(-10, 21, 0)),  # 5
    Part.LineSegment(V(-10, 21, 0), V(-10, 35.8, 0)),  # 6
    Part.LineSegment(V(-10, 35.8, 0), V(-9, 35.8, 0)),  # 7
], False)
sketch16.addConstraint([
    Sketcher.Constraint("Coincident", 0, 2, 1, 1),
    Sketcher.Constraint("Coincident", 1, 2, 2, 1),
    Sketcher.Constraint("Coincident", 2, 2, 3, 1),
    Sketcher.Constraint("Coincident", 3, 2, 4, 1),
    Sketcher.Constraint("Coincident", 4, 2, 5, 1),
    Sketcher.Constraint("Coincident", 5, 2, 6, 1),
    Sketcher.Constraint("Coincident", 6, 2, 7, 1),
    Sketcher.Constraint("Coincident", 7, 2, 0, 1),
    Sketcher.Constraint("Vertical", 0),
    Sketcher.Constraint("Horizontal", 1),
    Sketcher.Constraint("Vertical", 2),
    Sketcher.Constraint("Horizontal", 3),
    Sketcher.Constraint("Vertical", 4),
    Sketcher.Constraint("Horizontal", 5),
    Sketcher.Constraint("Vertical", 6),
    Sketcher.Constraint("Horizontal", 7),
    Sketcher.Constraint("Symmetric", 3, 2, 6, 2, -2),
    Sketcher.Constraint("Equal", 3, 7),
    Sketcher.Constraint("DistanceX", 1, 1, 1, 2, 18.0),
    Sketcher.Constraint("DistanceX", 3, 1, 3, 2, 1.0),
    Sketcher.Constraint("DistanceY", 0, 2, 0, 1, 13.8),
    Sketcher.Constraint("DistanceY", 4, 2, 4, 1, 14.8),
    Sketcher.Constraint("DistanceY", -1, 1, 0, 2, 22.0),
])
pad7 = body.newObject("PartDesign::Pad", "Pad006")
pad7.Profile = sketch16
pad7.Length = 50
pad7.Reversed = True

# Sketch on XY plane
sketch17 = body.newObject("Sketcher::SketchObject", "Sketch016")
sketch17.AttachmentSupport = (doc.getObject("XY_Plane"), [""])
sketch17.MapMode = "FlatFace"
sketch17.AttachmentOffset = App.Placement(V(0, 0, -50), App.Rotation())
sketch17.addGeometry([
    Part.LineSegment(V(10, 36, 0), V(10, 21, 0)),
    Part.LineSegment(V(10, 21, 0), V(-10, 21, 0)),
    Part.LineSegment(V(-10, 21, 0), V(-10, 36, 0)),
    Part.LineSegment(V(-10, 36, 0), V(10, 36, 0)),
], False)
sketch17.addConstraint([
    Sketcher.Constraint("Coincident", 0, 2, 1, 1),
    Sketcher.Constraint("Coincident", 1, 2, 2, 1),
    Sketcher.Constraint("Coincident", 2, 2, 3, 1),
    Sketcher.Constraint("Coincident", 3, 2, 0, 1),
    Sketcher.Constraint("Vertical", 0),
    Sketcher.Constraint("Horizontal", 1),
    Sketcher.Constraint("Vertical", 2),
    Sketcher.Constraint("Horizontal", 3),
    Sketcher.Constraint("DistanceX", 1, 2, 1, 1, 20.0),
    Sketcher.Constraint("DistanceY", 0, 2, 0, 1, 14.8),
    Sketcher.Constraint("DistanceX", -1, 1, 0, 2, 10.0),
    Sketcher.Constraint("DistanceY", -1, 1, 0, 2, 21.0),
])
pad8 = body.newObject("PartDesign::Pad", "Pad007")
pad8.Profile = sketch17
pad8.Length = 2
pad8.Reversed = True

# Sketch on XZ plane
sketch18 = body.newObject("Sketcher::SketchObject", "Sketch017")
sketch18.AttachmentSupport = (doc.getObject("XZ_Plane"), [""])
sketch18.MapMode = "FlatFace"
sketch18.AttachmentOffset = App.Placement(V(0, 0, -27), App.Rotation())
sketch18.addGeometry([
    Part.LineSegment(V(-54.8, 22.5, 0), V(-54.8, 32.5, 0)),  # 0
    Part.LineSegment(V(-54.8, 32.5, 0), V(-48.8, 32.5, 0)),  # 1
    Part.LineSegment(V(-48.8, 32.5, 0), V(-48.8, 22.5, 0)),  # 2
    Part.LineSegment(V(-48.8, 22.5, 0), V(-54.8, 22.5, 0)),  # 3
    Part.LineSegment(V(-50.8, 30.5, 0), V(-53.8, 30.5, 0)),  # 4
    Part.LineSegment(V(-53.8, 30.5, 0), V(-53.8, 24.5, 0)),  # 5
    Part.LineSegment(V(-53.8, 24.5, 0), V(-50.8, 24.5, 0)),  # 6
    Part.LineSegment(V(-50.8, 24.5, 0), V(-50.8, 30.5, 0)),  # 7
    Part.LineSegment(V(-54.8, 72.5, 0), V(-54.8, 82.5, 0)),  # 8
    Part.LineSegment(V(-54.8, 82.5, 0), V(-48.8, 82.5, 0)),  # 9
    Part.LineSegment(V(-48.8, 82.5, 0), V(-48.8, 72.5, 0)),  # 10
    Part.LineSegment(V(-48.8, 72.5, 0), V(-54.8, 72.5, 0)),  # 11
    Part.LineSegment(V(-50.8, 80.5, 0), V(-53.8, 80.5, 0)),  # 12
    Part.LineSegment(V(-53.8, 80.5, 0), V(-53.8, 74.5, 0)),  # 13
    Part.LineSegment(V(-53.8, 74.5, 0), V(-50.8, 74.5, 0)),  # 14
    Part.LineSegment(V(-50.8, 74.5, 0), V(-50.8, 80.5, 0)),  # 15
], False)
sketch18.addConstraint([
    Sketcher.Constraint("Coincident", 0, 2, 1, 1),
    Sketcher.Constraint("Coincident", 1, 2, 2, 1),
    Sketcher.Constraint("Coincident", 2, 2, 3, 1),
    Sketcher.Constraint("Coincident", 3, 2, 0, 1),
    Sketcher.Constraint("Coincident", 4, 2, 5, 1),
    Sketcher.Constraint("Coincident", 5, 2, 6, 1),
    Sketcher.Constraint("Coincident", 6, 2, 7, 1),
    Sketcher.Constraint("Coincident", 7, 2, 4, 1),
    Sketcher.Constraint("Coincident", 8, 2, 9, 1),
    Sketcher.Constraint("Coincident", 9, 2, 10, 1),
    Sketcher.Constraint("Coincident", 10, 2, 11, 1),
    Sketcher.Constraint("Coincident", 11, 2, 8, 1),
    Sketcher.Constraint("Coincident", 12, 2, 13, 1),
    Sketcher.Constraint("Coincident", 13, 2, 14, 1),
    Sketcher.Constraint("Coincident", 14, 2, 15, 1),
    Sketcher.Constraint("Coincident", 15, 2, 12, 1),
    Sketcher.Constraint("Vertical", 0),
    Sketcher.Constraint("Horizontal", 1),
    Sketcher.Constraint("Vertical", 2),
    Sketcher.Constraint("Horizontal", 3),
    Sketcher.Constraint("Horizontal", 4),
    Sketcher.Constraint("Vertical", 5),
    Sketcher.Constraint("Horizontal", 6),
    Sketcher.Constraint("Vertical", 7),
    Sketcher.Constraint("Vertical", 8),
    Sketcher.Constraint("Horizontal", 9),
    Sketcher.Constraint("Vertical", 10),
    Sketcher.Constraint("Horizontal", 11),
    Sketcher.Constraint("Horizontal", 12),
    Sketcher.Constraint("Vertical", 13),
    Sketcher.Constraint("Horizontal", 14),
    Sketcher.Constraint("Vertical", 15),
    Sketcher.Constraint("Vertical", 3, 2, 8, 2),
    Sketcher.Constraint("Vertical", 2, 2, 9, 2),
    Sketcher.Constraint("Vertical", 5, 2, 12, 2),
    Sketcher.Constraint("Vertical", 7, 2, 14, 2),
    Sketcher.Constraint("Equal", 11, 5),
    Sketcher.Constraint("Equal", 2, 8),
    Sketcher.Constraint("Equal", 7, 13),
    Sketcher.Constraint("DistanceX", 1, 1, 1, 2, 6.0),
    Sketcher.Constraint("DistanceX", 4, 2, 4, 1, 3.0),
    Sketcher.Constraint("DistanceY", 0, 1, 0, 2, 10.0),
    Sketcher.Constraint("DistanceX", 0, 2, 4, 2, 1.0),
    Sketcher.Constraint("DistanceY", 4, 2, 0, 2, 2.0),
    Sketcher.Constraint("DistanceY", 0, 2, 8, 2, 50.0),
    Sketcher.Constraint("DistanceY", 12, 2, 8, 2, 2.0),
    Sketcher.Constraint("DistanceX", 0, 2, -1, 1, 54.8),
    Sketcher.Constraint("DistanceY", -1, 1, 0, 2, 32.5),
])
pad9 = body.newObject("PartDesign::Pad", "Pad008")
pad9.Profile = sketch18
pad9.Length = 2

# Sketch on YZ plane
sketch19 = body.newObject("Sketcher::SketchObject", "Sketch018")
sketch19.AttachmentSupport = (doc.getObject("YZ_Plane"), [""])
sketch19.MapMode = "FlatFace"
sketch19.AttachmentOffset = App.Placement(V(0, 0, 17.4), App.Rotation())
sketch19.addGeometry([
    Part.LineSegment(V(14, 79, 0), V(10, 79, 0)),
    Part.LineSegment(V(10, 79, 0), V(10, 73, 0)),
    Part.LineSegment(V(10, 73, 0), V(14, 73, 0)),
    Part.LineSegment(V(14, 73, 0), V(14, 79, 0)),
], False)
sketch19.addConstraint([
    Sketcher.Constraint("Coincident", 0, 2, 1, 1),
    Sketcher.Constraint("Coincident", 1, 2, 2, 1),
    Sketcher.Constraint("Coincident", 2, 2, 3, 1),
    Sketcher.Constraint("Coincident", 3, 2, 0, 1),
    Sketcher.Constraint("Horizontal", 0),
    Sketcher.Constraint("Vertical", 1),
    Sketcher.Constraint("Horizontal", 2),
    Sketcher.Constraint("Vertical", 3),
    Sketcher.Constraint("DistanceX", 0, 2, 0, 1, 4.0),
    Sketcher.Constraint("DistanceY", 1, 2, 1, 1, 6.0),
    Sketcher.Constraint("DistanceX", -1, 1, 0, 2, 10.0),
    Sketcher.Constraint("DistanceY", -1, 1, 0, 2, 79.0),
])
pocket10 = body.newObject("PartDesign::Pocket", "Pocket009")
pocket10.Profile = sketch19
pocket10.Type = "UpToFirst"

# Sketch on YZ plane
sketch20 = body.newObject("Sketcher::SketchObject", "Sketch019")
sketch20.AttachmentSupport = (doc.getObject("YZ_Plane"), [""])
sketch20.MapMode = "FlatFace"
sketch20.AttachmentOffset = App.Placement(V(0, 0, 17.4), App.Rotation())
sketch20.addGeometry([
    Part.LineSegment(V(14, 33, 0), V(10, 33, 0)),
    Part.LineSegment(V(10, 33, 0), V(10, 27, 0)),
    Part.LineSegment(V(10, 27, 0), V(14, 27, 0)),
    Part.LineSegment(V(14, 27, 0), V(14, 33, 0)),
], False)
sketch20.addConstraint([
    Sketcher.Constraint("Coincident", 0, 2, 1, 1),
    Sketcher.Constraint("Coincident", 1, 2, 2, 1),
    Sketcher.Constraint("Coincident", 2, 2, 3, 1),
    Sketcher.Constraint("Coincident", 3, 2, 0, 1),
    Sketcher.Constraint("Horizontal", 0),
    Sketcher.Constraint("Vertical", 1),
    Sketcher.Constraint("Horizontal", 2),
    Sketcher.Constraint("Vertical", 3),
    Sketcher.Constraint("DistanceX", 0, 2, 0, 1, 4.0),
    Sketcher.Constraint("DistanceY", 1, 2, 1, 1, 6.0),
    Sketcher.Constraint("DistanceX", -1, 1, 0, 2, 10.0),
    Sketcher.Constraint("DistanceY", -1, 1, 0, 2, 33.0),
])
pocket11 = body.newObject("PartDesign::Pocket", "Pocket010")
pocket11.Profile = sketch20
pocket11.Type = "UpToFirst"

doc.recompute()
